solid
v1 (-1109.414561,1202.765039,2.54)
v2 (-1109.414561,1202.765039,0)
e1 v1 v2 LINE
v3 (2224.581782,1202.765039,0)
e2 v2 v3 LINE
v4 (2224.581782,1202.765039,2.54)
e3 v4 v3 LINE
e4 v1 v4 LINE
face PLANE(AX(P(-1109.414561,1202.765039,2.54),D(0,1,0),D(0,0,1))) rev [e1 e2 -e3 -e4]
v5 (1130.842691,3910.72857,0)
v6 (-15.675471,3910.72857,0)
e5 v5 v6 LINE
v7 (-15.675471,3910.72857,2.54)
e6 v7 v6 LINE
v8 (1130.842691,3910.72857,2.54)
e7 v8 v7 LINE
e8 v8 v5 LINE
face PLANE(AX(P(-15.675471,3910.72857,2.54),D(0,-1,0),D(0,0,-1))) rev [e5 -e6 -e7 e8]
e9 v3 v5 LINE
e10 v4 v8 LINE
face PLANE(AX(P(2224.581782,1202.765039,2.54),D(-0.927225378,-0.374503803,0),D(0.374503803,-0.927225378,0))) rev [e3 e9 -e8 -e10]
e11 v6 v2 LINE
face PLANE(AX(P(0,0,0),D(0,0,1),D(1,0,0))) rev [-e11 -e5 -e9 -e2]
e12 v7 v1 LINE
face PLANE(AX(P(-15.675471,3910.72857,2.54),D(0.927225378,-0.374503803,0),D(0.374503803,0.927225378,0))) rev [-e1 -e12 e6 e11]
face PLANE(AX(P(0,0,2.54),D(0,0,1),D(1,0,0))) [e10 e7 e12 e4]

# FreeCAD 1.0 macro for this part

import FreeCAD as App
import Part
import Sketcher

V = App.Vector
Q = App.Units.Quantity

doc = App.newDocument("Part")
body = doc.addObject("PartDesign::Body", "Body")

sketch1 = doc.addObject("Sketcher::SketchObject", "Sketch")
body.addObject(sketch1)
sketch1.AttachmentSupport = (doc.XY_Plane, [""])
sketch1.MapMode = "FlatFace"
sketch1.addGeometry(Part.LineSegment(V(-16, 3911, 0), V(-1109, 1203, 0)), False)
sketch1.addGeometry(Part.LineSegment(V(-1109, 1203, 0), V(2225, 1203, 0)), False)
sketch1.addGeometry(Part.LineSegment(V(2225, 1203, 0), V(1131, 3911, 0)), False)
sketch1.addGeometry(Part.LineSegment(V(1131, 3911, 0), V(-16, 3911, 0)), False)
sketch1.addConstraint(Sketcher.Constraint("Coincident", 0, 2, 1, 1))
sketch1.addConstraint(Sketcher.Constraint("Coincident", 1, 2, 2, 1))
sketch1.addConstraint(Sketcher.Constraint("Coincident", 2, 2, 3, 1))
sketch1.addConstraint(Sketcher.Constraint("Coincident", 3, 2, 0, 1))
sketch1.addConstraint(Sketcher.Constraint("Horizontal", 1))
sketch1.addConstraint(Sketcher.Constraint("Horizontal", 3))
sketch1.addConstraint(Sketcher.Constraint("Equal", 0, 2))
sketch1.addConstraint(Sketcher.Constraint("DistanceX", 1, 1, 1, 2, 3333.996343))
sketch1.addConstraint(Sketcher.Constraint("DistanceX", 3, 2, 3, 1, 1146.518162))
sketch1.addConstraint(Sketcher.Constraint("DistanceX", 0, 2, -1, 1, 1109.414561))
sketch1.addConstraint(Sketcher.Constraint("DistanceY", -1, 1, 0, 2, 1202.765039))
sketch1.addConstraint(Sketcher.Constraint("DistanceY", -1, 1, 2, 2, 3910.72857))
pad1 = doc.addObject("PartDesign::Pad", "Pad")
body.addObject(pad1)
pad1.Profile = sketch1
pad1.Length = Q("0.1 in")

doc.recompute()
